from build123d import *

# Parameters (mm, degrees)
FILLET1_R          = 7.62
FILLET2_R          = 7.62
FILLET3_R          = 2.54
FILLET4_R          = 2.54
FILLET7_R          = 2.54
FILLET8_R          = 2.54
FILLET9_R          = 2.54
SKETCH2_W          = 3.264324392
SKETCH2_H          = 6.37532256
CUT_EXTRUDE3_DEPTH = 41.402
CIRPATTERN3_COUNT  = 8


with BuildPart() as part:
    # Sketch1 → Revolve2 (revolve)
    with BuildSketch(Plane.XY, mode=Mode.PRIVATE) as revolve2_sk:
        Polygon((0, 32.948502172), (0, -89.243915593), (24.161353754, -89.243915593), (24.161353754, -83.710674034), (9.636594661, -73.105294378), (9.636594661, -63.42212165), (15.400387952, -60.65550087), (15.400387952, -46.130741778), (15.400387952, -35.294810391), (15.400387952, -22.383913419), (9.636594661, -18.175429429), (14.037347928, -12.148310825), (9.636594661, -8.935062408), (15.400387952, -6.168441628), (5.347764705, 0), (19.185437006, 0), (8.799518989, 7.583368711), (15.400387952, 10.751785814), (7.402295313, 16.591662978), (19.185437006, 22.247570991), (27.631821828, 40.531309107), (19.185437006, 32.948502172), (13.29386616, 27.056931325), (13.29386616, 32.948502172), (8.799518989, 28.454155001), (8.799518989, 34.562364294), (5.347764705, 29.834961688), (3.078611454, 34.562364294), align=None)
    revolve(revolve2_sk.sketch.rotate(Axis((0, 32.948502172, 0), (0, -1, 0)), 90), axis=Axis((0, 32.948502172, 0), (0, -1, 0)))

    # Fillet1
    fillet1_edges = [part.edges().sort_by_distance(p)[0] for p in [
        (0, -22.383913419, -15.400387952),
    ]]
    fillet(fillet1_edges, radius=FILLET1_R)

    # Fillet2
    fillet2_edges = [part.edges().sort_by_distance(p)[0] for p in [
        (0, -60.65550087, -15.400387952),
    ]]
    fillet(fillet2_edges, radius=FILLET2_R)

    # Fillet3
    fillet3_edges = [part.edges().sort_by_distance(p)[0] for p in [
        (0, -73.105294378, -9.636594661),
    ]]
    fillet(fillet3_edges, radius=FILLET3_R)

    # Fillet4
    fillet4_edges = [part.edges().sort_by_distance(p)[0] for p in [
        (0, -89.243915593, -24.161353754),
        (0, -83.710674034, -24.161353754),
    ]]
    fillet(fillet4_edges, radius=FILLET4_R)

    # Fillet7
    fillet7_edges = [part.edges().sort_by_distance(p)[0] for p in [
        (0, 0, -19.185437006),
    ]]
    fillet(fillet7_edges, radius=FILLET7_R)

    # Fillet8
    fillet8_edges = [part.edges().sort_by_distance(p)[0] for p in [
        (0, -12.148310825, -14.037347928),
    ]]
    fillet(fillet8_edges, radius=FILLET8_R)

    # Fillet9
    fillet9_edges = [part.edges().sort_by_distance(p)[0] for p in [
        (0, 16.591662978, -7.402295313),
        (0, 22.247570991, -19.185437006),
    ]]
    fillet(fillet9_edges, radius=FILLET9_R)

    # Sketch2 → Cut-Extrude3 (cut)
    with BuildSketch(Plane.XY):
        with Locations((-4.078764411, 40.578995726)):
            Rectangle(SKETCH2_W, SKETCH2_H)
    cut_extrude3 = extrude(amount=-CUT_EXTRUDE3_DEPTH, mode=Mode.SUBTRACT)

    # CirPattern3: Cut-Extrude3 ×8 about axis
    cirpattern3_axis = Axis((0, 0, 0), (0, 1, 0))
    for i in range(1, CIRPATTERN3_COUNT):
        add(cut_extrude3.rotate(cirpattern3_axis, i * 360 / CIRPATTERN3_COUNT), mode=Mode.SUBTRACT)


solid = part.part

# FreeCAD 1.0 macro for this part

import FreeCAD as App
import Part
import Sketcher
Q = App.Units.Quantity


def edges_at(feature, points):
    """Names of the edges that pass closest to the given points."""
    edges = feature.Shape.Edges
    near = lambda p: min(range(len(edges)), key=lambda i: edges[i].distToShape(Part.Vertex(*p))[0])
    return sorted({f"Edge{near(p) + 1}" for p in points})

doc = App.newDocument("Part")
body = doc.addObject("PartDesign::Body", "Body")

sketch1 = body.newObject("Sketcher::SketchObject", "Sketch")
sketch1.AttachmentSupport = (doc.getObject("XY_Plane"), [""])
sketch1.MapMode = "FlatFace"
sketch1.addGeometry([
    Part.LineSegment(App.Vector(0, 32.9, 0), App.Vector(0, -89.2, 0)),
    Part.LineSegment(App.Vector(0, -89.2, 0), App.Vector(24.2, -89.2, 0)),
    Part.LineSegment(App.Vector(24.2, -89.2, 0), App.Vector(24.2, -83.7, 0)),
    Part.LineSegment(App.Vector(24.2, -83.7, 0), App.Vector(9.6, -73.1, 0)),
    Part.LineSegment(App.Vector(9.6, -73.1, 0), App.Vector(9.6, -63.4, 0)),
    Part.LineSegment(App.Vector(9.6, -63.4, 0), App.Vector(15.4, -60.7, 0)),
    Part.LineSegment(App.Vector(15.4, -60.7, 0), App.Vector(15.4, -22.4, 0)),
    Part.LineSegment(App.Vector(15.4, -22.4, 0), App.Vector(9.6, -18.2, 0)),
    Part.LineSegment(App.Vector(9.6, -18.2, 0), App.Vector(14, -12.1, 0)),
    Part.LineSegment(App.Vector(14, -12.1, 0), App.Vector(9.6, -8.9, 0)),
    Part.LineSegment(App.Vector(9.6, -8.9, 0), App.Vector(15.4, -6.2, 0)),
    Part.LineSegment(App.Vector(15.4, -6.2, 0), App.Vector(5.3, 0, 0)),
    Part.LineSegment(App.Vector(5.3, 0, 0), App.Vector(19.2, 0, 0)),
    Part.LineSegment(App.Vector(19.2, 0, 0), App.Vector(8.8, 7.6, 0)),
    Part.LineSegment(App.Vector(8.8, 7.6, 0), App.Vector(15.4, 10.8, 0)),
    Part.LineSegment(App.Vector(15.4, 10.8, 0), App.Vector(7.4, 16.6, 0)),
    Part.LineSegment(App.Vector(7.4, 16.6, 0), App.Vector(19.2, 22.2, 0)),
    Part.LineSegment(App.Vector(19.2, 22.2, 0), App.Vector(27.6, 40.5, 0)),
    Part.LineSegment(App.Vector(27.6, 40.5, 0), App.Vector(19.2, 32.9, 0)),
    Part.LineSegment(App.Vector(19.2, 32.9, 0), App.Vector(13.3, 27.1, 0)),
    Part.LineSegment(App.Vector(13.3, 27.1, 0), App.Vector(13.3, 32.9, 0)),
    Part.LineSegment(App.Vector(13.3, 32.9, 0), App.Vector(8.8, 28.5, 0)),
    Part.LineSegment(App.Vector(8.8, 28.5, 0), App.Vector(8.8, 34.6, 0)),
    Part.LineSegment(App.Vector(8.8, 34.6, 0), App.Vector(5.3, 29.8, 0)),
    Part.LineSegment(App.Vector(5.3, 29.8, 0), App.Vector(3.1, 34.6, 0)),
    Part.LineSegment(App.Vector(3.1, 34.6, 0), App.Vector(0, 32.9, 0)),
], False)
sketch1.addConstraint([
    Sketcher.Constraint("Coincident", 0, 2, 1, 1),
    Sketcher.Constraint("Coincident", 1, 2, 2, 1),
    Sketcher.Constraint("Coincident", 2, 2, 3, 1),
    Sketcher.Constraint("Coincident", 3, 2, 4, 1),
    Sketcher.Constraint("Coincident", 4, 2, 5, 1),
    Sketcher.Constraint("Coincident", 5, 2, 6, 1),
    Sketcher.Constraint("Coincident", 6, 2, 7, 1),
    Sketcher.Constraint("Coincident", 7, 2, 8, 1),
    Sketcher.Constraint("Coincident", 8, 2, 9, 1),
    Sketcher.Constraint("Coincident", 9, 2, 10, 1),
    Sketcher.Constraint("Coincident", 10, 2, 11, 1),
    Sketcher.Constraint("Coincident", 11, 2, 12, 1),
    Sketcher.Constraint("Coincident", 12, 2, 13, 1),
    Sketcher.Constraint("Coincident", 13, 2, 14, 1),
    Sketcher.Constraint("Coincident", 14, 2, 15, 1),
    Sketcher.Constraint("Coincident", 15, 2, 16, 1),
    Sketcher.Constraint("Coincident", 16, 2, 17, 1),
    Sketcher.Constraint("Coincident", 17, 2, 18, 1),
    Sketcher.Constraint("Coincident", 18, 2, 19, 1),
    Sketcher.Constraint("Coincident", 19, 2, 20, 1),
    Sketcher.Constraint("Coincident", 20, 2, 21, 1),
    Sketcher.Constraint("Coincident", 21, 2, 22, 1),
    Sketcher.Constraint("Coincident", 22, 2, 23, 1),
    Sketcher.Constraint("Coincident", 23, 2, 24, 1),
    Sketcher.Constraint("Coincident", 24, 2, 25, 1),
    Sketcher.Constraint("Coincident", 25, 2, 0, 1),
    Sketcher.Constraint("Vertical", 0),
    Sketcher.Constraint("Horizontal", 1),
    Sketcher.Constraint("Vertical", 2),
    Sketcher.Constraint("Vertical", 4),
    Sketcher.Constraint("Vertical", 6),
    Sketcher.Constraint("Horizontal", 12),
    Sketcher.Constraint("Vertical", 20),
    Sketcher.Constraint("Vertical", 22),
    Sketcher.Constraint("PointOnObject", 0, 2, -2),
    Sketcher.Constraint("PointOnObject", 11, 2, -1),
    Sketcher.Constraint("Parallel", 3, 7),
    Sketcher.Constraint("Perpendicular", 7, 8),
    Sketcher.Constraint("Perpendicular", 8, 9),
    Sketcher.Constraint("Parallel", 5, 10),
    Sketcher.Constraint("Parallel", 9, 13),
    Sketcher.Constraint("Parallel", 10, 14),
    Sketcher.Constraint("Parallel", 13, 15),
    Sketcher.Constraint("Parallel", 14, 16),
    Sketcher.Constraint("Parallel", 19, 21),
    Sketcher.Constraint("Perpendicular", 15, 23),
    Sketcher.Constraint("Perpendicular", 16, 24),
    Sketcher.Constraint("Horizontal", 18, 2, 20, 2),
    Sketcher.Constraint("Horizontal", 22, 2, 24, 2),
    Sketcher.Constraint("Horizontal", 20, 2, 25, 2),
    Sketcher.Constraint("Vertical", 4, 2, 7, 2),
    Sketcher.Constraint("Vertical", 7, 2, 9, 2),
    Sketcher.Constraint("Vertical", 6, 2, 10, 2),
    Sketcher.Constraint("Vertical", 10, 2, 14, 2),
    Sketcher.Constraint("Vertical", 12, 2, 16, 2),
    Sketcher.Constraint("Vertical", 16, 2, 18, 2),
    Sketcher.Constraint("Vertical", 13, 2, 21, 2),
    Sketcher.Constraint("Vertical", 11, 2, 23, 2),
    Sketcher.Constraint("Angle", 19, Q("-135 deg")),
    Sketcher.Constraint("Distance", 9, Q("5.448999 mm")),
    Sketcher.Constraint("DistanceY", 2, 1, 2, 2, Q("5.533242 mm")),
    Sketcher.Constraint("DistanceY", 20, 1, 20, 2, Q("5.891571 mm")),
    Sketcher.Constraint("DistanceY", 22, 1, 22, 2, Q("6.108209 mm")),
    Sketcher.Constraint("DistanceY", 5, 2, -1, 1, Q("60.655501 mm")),
    Sketcher.Constraint("DistanceX", 23, 2, 19, 2, Q("7.946101 mm")),
    Sketcher.Constraint("DistanceY", 15, 2, 23, 2, Q("13.243299 mm")),
    Sketcher.Constraint("Distance", 7, Q("7.136711 mm")),
    Sketcher.Constraint("Distance", 8, Q("7.46276 mm")),
    Sketcher.Constraint("Distance", 14, Q("7.321908 mm")),
    Sketcher.Constraint("Distance", 16, Q("13.070261 mm")),
    Sketcher.Constraint("Distance", 17, Q("20.140419 mm")),
    Sketcher.Constraint("DistanceX", 1, 1, 1, 2, Q("24.161354 mm")),
    Sketcher.Constraint("DistanceY", 0, 2, 0, 1, Q("122.192418 mm")),
    Sketcher.Constraint("DistanceY", 4, 1, 4, 2, Q("9.683173 mm")),
    Sketcher.Constraint("DistanceY", 6, 1, 6, 2, Q("38.271587 mm")),
    Sketcher.Constraint("DistanceY", 4, 2, -1, 1, Q("63.422122 mm")),
    Sketcher.Constraint("DistanceX", -1, 1, 13, 2, Q("8.799519 mm")),
    Sketcher.Constraint("DistanceX", -1, 1, 17, 2, Q("27.631822 mm")),
])
revolution = body.newObject("PartDesign::Revolution", "Revolution")
revolution.Profile = sketch1
revolution.ReferenceAxis = (sketch1, ["V_Axis"])
revolution.Angle = 360
doc.recompute()

fillet = body.newObject("PartDesign::Fillet", "Fillet")
fillet.Base = (revolution, edges_at(revolution, [(0, -22.384, -15.4)]))
fillet.Radius = Q("0.3 in")
doc.recompute()

fillet2 = body.newObject("PartDesign::Fillet", "Fillet001")
fillet2.Base = (fillet, edges_at(fillet, [(0, -60.656, -15.4)]))
fillet2.Radius = Q("0.3 in")
doc.recompute()

fillet3 = body.newObject("PartDesign::Fillet", "Fillet002")
fillet3.Base = (fillet2, edges_at(fillet2, [(0, -73.105, -9.637)]))
fillet3.Radius = Q("0.1 in")
doc.recompute()

fillet4 = body.newObject("PartDesign::Fillet", "Fillet003")
fillet4.Base = (fillet3, edges_at(fillet3, [(0, -89.244, -24.161), (0, -83.711, -24.161)]))
fillet4.Radius = Q("0.1 in")
doc.recompute()

fillet5 = body.newObject("PartDesign::Fillet", "Fillet004")
fillet5.Base = (fillet4, edges_at(fillet4, [(0, 0, -19.185)]))
fillet5.Radius = Q("0.1 in")
doc.recompute()

fillet6 = body.newObject("PartDesign::Fillet", "Fillet005")
fillet6.Base = (fillet5, edges_at(fillet5, [(0, -12.148, -14.037)]))
fillet6.Radius = Q("0.1 in")
doc.recompute()

fillet7 = body.newObject("PartDesign::Fillet", "Fillet006")
fillet7.Base = (fillet6, edges_at(fillet6, [(0, 16.592, -7.402), (0, 22.248, -19.185)]))
fillet7.Radius = Q("0.1 in")

sketch2 = body.newObject("Sketcher::SketchObject", "Sketch001")
sketch2.AttachmentSupport = (doc.getObject("XY_Plane"), [""])
sketch2.MapMode = "FlatFace"
sketch2.addGeometry([
    Part.LineSegment(App.Vector(-5.7, 43.8, 0), App.Vector(-5.7, 37.4, 0)),
    Part.LineSegment(App.Vector(-5.7, 37.4, 0), App.Vector(-2.4, 37.4, 0)),
    Part.LineSegment(App.Vector(-2.4, 37.4, 0), App.Vector(-2.4, 43.8, 0)),
    Part.LineSegment(App.Vector(-2.4, 43.8, 0), App.Vector(-5.7, 43.8, 0)),
], False)
sketch2.addConstraint([
    Sketcher.Constraint("Coincident", 0, 2, 1, 1),
    Sketcher.Constraint("Coincident", 1, 2, 2, 1),
    Sketcher.Constraint("Coincident", 2, 2, 3, 1),
    Sketcher.Constraint("Coincident", 3, 2, 0, 1),
    Sketcher.Constraint("Vertical", 0),
    Sketcher.Constraint("Horizontal", 1),
    Sketcher.Constraint("Vertical", 2),
    Sketcher.Constraint("Horizontal", 3),
    Sketcher.Constraint("DistanceX", 1, 1, 1, 2, Q("3.264324 mm")),
    Sketcher.Constraint("DistanceY", 0, 2, 0, 1, Q("6.375323 mm")),
    Sketcher.Constraint("DistanceX", 0, 2, -1, 1, Q("5.710927 mm")),
    Sketcher.Constraint("DistanceY", -1, 1, 0, 2, Q("37.391334 mm")),
])
pocket1 = body.newObject("PartDesign::Pocket", "Pocket")
pocket1.Profile = sketch2
pocket1.Length = Q("1.63 in")
doc.recompute()

polarpattern = body.newObject("PartDesign::PolarPattern", "PolarPattern")
polarpattern.Originals = [pocket1]
polarpattern.Axis = (doc.getObject("Y_Axis"), [""])
polarpattern.Angle = 360
polarpattern.Occurrences = 8
body.Tip = polarpattern

doc.recompute()
